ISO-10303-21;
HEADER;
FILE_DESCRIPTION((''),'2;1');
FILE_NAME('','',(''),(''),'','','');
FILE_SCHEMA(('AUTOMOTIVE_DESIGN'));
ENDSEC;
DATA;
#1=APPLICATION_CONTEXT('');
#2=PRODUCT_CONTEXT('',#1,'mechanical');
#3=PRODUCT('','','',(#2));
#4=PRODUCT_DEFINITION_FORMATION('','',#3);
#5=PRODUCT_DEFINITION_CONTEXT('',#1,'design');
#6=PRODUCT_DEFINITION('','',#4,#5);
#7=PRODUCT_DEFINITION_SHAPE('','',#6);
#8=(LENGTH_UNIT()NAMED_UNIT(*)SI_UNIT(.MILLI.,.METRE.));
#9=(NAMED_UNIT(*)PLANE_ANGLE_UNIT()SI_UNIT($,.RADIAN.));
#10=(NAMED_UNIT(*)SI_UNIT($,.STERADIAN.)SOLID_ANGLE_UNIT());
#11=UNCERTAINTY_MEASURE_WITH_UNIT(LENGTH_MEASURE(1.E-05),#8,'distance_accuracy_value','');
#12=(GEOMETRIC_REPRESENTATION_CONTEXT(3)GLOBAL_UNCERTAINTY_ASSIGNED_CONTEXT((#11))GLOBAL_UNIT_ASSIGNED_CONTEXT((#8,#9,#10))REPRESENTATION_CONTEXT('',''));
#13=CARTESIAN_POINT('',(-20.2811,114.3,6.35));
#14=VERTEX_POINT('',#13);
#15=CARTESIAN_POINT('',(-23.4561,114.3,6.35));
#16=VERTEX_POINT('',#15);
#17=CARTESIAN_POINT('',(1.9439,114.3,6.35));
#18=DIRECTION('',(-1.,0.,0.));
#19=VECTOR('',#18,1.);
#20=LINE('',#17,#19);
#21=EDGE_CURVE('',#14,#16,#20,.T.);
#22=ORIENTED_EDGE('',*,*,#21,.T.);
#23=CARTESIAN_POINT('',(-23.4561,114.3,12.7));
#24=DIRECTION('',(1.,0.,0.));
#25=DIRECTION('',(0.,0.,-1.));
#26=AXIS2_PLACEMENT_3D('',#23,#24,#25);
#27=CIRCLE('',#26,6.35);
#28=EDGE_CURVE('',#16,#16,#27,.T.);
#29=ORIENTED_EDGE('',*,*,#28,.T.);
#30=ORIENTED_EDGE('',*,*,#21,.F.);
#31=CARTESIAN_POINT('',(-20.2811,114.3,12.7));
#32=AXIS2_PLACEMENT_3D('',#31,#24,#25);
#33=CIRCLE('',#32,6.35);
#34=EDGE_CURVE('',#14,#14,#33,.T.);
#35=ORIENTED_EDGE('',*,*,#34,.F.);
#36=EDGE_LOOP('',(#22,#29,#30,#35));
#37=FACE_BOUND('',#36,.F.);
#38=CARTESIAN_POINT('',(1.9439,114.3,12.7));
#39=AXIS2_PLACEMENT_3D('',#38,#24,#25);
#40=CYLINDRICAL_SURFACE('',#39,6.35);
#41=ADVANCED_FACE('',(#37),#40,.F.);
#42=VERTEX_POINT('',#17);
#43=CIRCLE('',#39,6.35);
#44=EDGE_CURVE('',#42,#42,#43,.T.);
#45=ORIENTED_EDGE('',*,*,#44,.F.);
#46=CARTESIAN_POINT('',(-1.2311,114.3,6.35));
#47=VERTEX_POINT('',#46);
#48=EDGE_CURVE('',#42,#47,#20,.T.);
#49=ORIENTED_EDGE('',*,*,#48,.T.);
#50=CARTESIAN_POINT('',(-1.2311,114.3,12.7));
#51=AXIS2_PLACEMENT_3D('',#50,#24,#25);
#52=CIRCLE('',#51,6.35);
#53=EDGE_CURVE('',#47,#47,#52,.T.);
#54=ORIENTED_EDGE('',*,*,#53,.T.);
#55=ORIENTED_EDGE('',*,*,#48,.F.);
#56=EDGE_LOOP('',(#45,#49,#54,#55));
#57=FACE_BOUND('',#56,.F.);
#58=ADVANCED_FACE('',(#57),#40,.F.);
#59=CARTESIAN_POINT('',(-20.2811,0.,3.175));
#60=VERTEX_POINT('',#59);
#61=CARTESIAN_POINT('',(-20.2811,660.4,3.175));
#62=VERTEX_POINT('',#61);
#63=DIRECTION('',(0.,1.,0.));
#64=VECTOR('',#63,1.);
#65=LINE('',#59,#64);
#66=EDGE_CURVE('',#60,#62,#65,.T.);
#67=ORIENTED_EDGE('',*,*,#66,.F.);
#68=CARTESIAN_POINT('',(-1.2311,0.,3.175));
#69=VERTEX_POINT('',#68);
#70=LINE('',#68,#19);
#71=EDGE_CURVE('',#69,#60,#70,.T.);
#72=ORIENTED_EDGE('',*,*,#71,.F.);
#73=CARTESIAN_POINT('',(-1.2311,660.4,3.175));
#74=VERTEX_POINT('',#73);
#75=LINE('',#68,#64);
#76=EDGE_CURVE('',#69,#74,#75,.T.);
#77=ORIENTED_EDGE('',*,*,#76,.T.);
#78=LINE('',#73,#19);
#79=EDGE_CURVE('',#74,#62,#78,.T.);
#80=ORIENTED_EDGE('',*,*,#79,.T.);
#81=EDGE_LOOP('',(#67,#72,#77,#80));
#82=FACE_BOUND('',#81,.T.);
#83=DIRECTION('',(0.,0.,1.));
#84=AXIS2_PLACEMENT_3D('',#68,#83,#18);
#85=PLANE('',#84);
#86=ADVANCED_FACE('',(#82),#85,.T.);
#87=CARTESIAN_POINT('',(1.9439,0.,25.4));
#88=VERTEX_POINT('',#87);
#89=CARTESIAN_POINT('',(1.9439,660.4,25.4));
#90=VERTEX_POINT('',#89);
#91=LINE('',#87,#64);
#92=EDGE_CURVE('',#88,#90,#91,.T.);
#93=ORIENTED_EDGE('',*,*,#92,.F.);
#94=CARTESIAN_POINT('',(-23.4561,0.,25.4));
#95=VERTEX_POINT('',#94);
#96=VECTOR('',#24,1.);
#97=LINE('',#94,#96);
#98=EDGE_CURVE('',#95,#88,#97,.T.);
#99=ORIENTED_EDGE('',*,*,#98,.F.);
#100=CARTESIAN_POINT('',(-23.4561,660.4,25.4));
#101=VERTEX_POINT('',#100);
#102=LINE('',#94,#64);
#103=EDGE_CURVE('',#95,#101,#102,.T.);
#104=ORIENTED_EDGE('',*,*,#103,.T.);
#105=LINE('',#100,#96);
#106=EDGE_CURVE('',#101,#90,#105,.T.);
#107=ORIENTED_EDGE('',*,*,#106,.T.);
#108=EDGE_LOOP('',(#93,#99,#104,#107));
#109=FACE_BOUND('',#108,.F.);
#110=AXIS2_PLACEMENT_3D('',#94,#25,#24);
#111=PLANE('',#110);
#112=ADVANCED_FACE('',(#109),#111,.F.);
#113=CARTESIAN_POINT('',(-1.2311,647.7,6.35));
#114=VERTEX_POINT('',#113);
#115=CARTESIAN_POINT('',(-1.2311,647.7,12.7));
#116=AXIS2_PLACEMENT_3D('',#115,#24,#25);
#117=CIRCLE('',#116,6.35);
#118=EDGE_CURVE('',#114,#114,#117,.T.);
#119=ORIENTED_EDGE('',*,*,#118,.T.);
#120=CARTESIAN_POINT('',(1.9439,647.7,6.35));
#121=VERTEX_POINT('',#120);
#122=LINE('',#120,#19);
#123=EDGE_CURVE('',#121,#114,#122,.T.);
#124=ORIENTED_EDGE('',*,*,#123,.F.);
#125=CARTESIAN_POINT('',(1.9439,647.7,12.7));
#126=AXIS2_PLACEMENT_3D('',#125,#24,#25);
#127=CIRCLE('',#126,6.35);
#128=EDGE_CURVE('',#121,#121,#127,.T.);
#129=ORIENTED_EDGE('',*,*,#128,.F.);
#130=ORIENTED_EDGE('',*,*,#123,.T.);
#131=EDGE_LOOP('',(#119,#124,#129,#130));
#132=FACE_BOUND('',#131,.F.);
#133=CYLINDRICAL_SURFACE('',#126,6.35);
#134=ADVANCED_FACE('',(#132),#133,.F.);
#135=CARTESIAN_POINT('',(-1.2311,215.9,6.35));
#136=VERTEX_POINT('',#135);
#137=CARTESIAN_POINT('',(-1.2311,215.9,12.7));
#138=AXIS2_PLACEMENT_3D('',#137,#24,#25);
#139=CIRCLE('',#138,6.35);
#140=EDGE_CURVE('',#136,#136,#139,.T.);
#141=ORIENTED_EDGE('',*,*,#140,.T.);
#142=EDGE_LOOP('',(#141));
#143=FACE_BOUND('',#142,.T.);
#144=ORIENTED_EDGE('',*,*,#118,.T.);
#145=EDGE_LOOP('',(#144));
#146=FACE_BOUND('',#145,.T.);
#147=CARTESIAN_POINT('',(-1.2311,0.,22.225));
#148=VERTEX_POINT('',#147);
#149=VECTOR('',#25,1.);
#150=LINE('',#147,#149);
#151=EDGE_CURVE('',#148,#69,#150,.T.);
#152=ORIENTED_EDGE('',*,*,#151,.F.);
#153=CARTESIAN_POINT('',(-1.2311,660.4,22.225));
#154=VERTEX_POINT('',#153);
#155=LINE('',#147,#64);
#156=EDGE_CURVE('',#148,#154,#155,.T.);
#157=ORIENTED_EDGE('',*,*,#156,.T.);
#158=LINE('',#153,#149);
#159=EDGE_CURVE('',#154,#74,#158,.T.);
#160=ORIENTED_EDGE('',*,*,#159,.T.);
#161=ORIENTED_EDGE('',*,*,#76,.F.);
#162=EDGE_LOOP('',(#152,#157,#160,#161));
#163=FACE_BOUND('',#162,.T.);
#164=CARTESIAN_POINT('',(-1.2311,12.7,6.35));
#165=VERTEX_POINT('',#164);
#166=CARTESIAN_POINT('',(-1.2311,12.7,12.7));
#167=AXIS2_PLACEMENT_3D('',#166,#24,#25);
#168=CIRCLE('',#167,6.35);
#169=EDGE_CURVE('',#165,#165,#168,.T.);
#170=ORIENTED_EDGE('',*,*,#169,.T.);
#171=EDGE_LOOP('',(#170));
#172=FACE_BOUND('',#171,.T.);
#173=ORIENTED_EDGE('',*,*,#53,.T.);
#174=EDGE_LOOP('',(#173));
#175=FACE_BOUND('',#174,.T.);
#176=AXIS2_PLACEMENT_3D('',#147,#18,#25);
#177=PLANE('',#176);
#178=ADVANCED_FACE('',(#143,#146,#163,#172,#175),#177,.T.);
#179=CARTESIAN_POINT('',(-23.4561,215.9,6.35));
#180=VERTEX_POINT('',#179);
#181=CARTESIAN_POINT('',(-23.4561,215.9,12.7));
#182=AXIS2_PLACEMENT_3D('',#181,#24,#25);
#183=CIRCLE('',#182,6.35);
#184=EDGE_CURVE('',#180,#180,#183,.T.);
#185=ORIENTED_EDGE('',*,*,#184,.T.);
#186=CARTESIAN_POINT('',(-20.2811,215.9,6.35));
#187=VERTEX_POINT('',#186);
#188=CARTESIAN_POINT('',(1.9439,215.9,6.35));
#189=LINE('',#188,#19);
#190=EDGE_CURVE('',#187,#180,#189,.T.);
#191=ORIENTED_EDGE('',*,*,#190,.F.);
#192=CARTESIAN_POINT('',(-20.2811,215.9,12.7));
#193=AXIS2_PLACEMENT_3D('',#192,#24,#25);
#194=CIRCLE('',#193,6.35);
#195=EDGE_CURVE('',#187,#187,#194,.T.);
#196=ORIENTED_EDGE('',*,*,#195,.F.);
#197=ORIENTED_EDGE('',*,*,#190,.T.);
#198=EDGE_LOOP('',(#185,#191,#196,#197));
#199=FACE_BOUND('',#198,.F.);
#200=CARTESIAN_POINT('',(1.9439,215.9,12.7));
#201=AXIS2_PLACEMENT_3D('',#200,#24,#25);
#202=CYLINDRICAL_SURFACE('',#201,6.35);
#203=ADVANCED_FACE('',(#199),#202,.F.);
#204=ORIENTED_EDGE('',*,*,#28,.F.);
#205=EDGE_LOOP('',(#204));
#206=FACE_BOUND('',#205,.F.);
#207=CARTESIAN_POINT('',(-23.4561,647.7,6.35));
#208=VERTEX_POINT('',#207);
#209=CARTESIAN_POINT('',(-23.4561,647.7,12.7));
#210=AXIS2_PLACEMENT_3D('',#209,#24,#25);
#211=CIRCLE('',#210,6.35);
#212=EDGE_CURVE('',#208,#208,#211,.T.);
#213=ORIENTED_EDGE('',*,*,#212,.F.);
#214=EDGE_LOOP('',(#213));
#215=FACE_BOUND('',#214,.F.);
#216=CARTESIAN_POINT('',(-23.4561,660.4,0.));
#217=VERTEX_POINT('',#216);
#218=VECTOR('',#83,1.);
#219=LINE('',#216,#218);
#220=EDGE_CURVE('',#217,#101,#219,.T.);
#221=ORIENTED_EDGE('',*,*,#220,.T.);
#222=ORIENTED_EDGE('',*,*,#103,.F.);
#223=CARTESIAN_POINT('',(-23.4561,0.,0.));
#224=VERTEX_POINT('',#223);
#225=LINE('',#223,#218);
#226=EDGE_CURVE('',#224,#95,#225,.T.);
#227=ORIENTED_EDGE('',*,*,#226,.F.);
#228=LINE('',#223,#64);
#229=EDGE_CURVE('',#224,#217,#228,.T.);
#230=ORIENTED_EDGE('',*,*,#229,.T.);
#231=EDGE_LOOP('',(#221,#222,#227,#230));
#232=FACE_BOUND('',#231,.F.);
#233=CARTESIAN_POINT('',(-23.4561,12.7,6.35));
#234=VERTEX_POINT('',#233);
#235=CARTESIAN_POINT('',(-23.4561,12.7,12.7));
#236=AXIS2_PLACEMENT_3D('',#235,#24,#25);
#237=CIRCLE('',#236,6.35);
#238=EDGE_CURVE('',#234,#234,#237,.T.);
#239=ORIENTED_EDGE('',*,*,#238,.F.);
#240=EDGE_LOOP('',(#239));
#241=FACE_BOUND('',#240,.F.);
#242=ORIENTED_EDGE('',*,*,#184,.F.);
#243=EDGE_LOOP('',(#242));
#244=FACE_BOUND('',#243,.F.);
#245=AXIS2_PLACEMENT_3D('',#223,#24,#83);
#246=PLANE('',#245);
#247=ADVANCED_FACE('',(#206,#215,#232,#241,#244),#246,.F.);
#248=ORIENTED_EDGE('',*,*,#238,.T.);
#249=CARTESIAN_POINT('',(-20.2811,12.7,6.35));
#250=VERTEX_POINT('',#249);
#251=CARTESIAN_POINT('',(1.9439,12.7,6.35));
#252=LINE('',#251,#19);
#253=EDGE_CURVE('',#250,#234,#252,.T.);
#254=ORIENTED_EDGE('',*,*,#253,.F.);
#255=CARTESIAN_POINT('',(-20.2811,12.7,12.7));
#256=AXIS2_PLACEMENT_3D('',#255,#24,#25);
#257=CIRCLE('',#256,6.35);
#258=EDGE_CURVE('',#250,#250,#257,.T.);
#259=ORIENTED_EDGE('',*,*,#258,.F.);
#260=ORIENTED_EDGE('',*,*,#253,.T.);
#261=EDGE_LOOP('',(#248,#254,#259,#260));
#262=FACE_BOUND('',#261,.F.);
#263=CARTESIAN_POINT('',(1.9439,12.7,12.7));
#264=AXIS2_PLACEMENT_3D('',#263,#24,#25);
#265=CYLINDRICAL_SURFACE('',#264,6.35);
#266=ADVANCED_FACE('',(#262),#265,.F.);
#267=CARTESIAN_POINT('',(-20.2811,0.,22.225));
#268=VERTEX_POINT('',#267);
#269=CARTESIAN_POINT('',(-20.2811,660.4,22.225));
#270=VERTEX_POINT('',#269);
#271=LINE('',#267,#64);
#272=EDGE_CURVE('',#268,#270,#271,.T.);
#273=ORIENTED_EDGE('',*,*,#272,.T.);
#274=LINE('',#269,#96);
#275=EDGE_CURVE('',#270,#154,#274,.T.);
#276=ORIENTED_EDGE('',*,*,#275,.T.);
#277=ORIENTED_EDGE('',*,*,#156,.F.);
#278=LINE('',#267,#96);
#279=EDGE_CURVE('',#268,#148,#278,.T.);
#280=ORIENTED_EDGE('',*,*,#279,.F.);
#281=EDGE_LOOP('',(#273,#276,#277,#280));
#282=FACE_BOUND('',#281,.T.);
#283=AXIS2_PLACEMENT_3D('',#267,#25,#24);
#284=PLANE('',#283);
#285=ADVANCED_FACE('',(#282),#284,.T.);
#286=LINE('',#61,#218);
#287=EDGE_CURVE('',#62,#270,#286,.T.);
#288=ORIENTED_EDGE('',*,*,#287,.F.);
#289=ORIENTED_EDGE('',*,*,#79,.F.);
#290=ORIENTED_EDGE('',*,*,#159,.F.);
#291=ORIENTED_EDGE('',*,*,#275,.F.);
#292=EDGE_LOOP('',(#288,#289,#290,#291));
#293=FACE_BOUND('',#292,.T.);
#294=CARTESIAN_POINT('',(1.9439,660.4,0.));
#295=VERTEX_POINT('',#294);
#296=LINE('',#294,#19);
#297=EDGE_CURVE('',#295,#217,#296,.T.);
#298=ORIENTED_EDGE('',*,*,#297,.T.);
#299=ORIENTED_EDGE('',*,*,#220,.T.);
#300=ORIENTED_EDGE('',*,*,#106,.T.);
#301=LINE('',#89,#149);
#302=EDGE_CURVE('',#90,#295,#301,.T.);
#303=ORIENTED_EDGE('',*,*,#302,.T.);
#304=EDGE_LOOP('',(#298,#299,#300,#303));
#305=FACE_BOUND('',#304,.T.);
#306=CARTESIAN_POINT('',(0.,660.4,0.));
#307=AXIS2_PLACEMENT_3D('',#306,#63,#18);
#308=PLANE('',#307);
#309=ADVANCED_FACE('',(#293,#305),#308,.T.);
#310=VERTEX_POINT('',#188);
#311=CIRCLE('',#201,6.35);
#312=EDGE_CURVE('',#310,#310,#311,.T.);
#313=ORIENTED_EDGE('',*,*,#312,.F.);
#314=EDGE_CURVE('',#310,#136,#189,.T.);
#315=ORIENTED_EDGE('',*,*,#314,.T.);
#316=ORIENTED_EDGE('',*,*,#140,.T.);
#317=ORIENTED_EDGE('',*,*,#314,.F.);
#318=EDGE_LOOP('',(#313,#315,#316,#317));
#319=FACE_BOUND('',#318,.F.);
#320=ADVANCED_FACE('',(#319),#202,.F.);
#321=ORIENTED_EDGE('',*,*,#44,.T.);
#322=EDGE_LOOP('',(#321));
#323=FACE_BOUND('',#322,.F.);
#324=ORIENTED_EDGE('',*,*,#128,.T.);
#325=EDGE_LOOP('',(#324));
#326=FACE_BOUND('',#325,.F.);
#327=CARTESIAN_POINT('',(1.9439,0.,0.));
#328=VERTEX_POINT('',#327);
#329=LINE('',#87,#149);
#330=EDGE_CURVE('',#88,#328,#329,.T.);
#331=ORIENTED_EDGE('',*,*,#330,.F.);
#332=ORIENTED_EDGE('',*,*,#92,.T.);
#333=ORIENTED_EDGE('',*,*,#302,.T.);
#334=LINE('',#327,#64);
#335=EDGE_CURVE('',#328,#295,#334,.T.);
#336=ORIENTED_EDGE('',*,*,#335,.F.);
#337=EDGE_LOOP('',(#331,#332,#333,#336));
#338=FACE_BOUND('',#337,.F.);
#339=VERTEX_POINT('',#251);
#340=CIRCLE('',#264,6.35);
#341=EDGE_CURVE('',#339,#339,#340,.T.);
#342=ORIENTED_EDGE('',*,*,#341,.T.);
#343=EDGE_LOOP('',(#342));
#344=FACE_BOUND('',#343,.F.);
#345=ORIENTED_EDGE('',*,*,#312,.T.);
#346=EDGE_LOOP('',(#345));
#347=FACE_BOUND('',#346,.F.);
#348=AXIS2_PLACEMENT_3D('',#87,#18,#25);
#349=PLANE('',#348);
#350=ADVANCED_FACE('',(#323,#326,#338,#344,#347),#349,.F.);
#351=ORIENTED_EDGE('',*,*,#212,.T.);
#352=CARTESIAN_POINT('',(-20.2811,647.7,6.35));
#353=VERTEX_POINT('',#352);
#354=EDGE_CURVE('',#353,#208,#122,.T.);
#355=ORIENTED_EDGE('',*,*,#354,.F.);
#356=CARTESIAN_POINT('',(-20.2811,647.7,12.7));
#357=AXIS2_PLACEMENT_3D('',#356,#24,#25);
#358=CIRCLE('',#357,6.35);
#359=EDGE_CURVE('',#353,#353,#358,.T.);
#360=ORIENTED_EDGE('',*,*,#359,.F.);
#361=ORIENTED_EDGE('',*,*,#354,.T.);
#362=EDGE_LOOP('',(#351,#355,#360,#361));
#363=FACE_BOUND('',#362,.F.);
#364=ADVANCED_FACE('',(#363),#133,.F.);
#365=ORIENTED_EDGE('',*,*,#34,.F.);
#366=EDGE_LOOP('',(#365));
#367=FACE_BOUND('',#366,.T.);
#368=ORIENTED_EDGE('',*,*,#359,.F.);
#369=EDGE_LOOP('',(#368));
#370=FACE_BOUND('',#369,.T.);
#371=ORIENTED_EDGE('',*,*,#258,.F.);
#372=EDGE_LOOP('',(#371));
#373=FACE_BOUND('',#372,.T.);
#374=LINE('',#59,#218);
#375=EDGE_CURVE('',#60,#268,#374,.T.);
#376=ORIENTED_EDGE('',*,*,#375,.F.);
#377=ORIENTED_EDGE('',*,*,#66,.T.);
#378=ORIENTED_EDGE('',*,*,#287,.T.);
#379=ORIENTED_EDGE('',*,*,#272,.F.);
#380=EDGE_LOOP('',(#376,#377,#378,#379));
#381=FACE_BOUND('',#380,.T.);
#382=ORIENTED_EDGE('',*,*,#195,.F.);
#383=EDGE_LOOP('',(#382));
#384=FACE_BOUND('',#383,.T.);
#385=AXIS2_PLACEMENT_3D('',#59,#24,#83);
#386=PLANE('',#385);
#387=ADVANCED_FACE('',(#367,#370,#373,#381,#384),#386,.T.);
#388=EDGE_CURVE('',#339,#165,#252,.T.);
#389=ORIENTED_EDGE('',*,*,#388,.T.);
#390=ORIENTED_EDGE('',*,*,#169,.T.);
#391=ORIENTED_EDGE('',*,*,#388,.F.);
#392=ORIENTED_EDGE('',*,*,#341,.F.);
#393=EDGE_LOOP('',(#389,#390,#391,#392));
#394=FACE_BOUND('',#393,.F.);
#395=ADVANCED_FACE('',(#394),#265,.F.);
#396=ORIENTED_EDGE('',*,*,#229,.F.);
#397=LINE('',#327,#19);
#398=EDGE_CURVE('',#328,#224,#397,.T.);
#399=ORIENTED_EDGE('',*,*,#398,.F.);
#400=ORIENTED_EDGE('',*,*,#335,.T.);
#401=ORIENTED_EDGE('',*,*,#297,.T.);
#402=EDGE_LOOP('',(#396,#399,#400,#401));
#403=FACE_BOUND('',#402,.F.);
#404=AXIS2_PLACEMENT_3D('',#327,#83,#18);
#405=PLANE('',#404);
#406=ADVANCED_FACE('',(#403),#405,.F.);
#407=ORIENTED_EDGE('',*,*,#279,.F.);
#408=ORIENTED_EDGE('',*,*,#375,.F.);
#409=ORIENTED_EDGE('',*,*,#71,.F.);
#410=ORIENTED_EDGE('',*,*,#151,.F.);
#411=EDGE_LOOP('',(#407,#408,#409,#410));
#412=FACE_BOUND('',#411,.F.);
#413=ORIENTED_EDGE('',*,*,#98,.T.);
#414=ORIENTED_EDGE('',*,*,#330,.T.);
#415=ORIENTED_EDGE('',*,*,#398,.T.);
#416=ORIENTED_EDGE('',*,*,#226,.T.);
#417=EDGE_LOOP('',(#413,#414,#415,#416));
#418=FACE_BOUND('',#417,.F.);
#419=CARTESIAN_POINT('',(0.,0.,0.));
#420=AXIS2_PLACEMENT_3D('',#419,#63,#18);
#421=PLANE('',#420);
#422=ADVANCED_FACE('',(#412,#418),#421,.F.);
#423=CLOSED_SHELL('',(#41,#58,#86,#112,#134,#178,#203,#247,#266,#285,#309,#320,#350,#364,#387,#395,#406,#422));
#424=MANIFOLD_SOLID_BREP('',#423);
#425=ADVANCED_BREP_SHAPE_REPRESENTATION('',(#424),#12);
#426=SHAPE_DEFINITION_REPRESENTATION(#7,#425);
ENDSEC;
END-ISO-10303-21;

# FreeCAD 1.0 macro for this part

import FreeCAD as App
import Part
import Sketcher
Q = App.Units.Quantity

doc = App.newDocument("Part")
body = doc.addObject("PartDesign::Body", "Body")

sketch1 = body.newObject("Sketcher::SketchObject", "Sketch")
sketch1.AttachmentSupport = (doc.getObject("XZ_Plane"), [""])
sketch1.MapMode = "FlatFace"
sketch1.addGeometry([
    Part.LineSegment(App.Vector(2, 25, 0), App.Vector(2, 0, 0)),
    Part.LineSegment(App.Vector(2, 0, 0), App.Vector(-23, 0, 0)),
    Part.LineSegment(App.Vector(-23, 0, 0), App.Vector(-23, 25, 0)),
    Part.LineSegment(App.Vector(-23, 25, 0), App.Vector(2, 25, 0)),
    Part.LineSegment(App.Vector(-1, 22, 0), App.Vector(-20, 22, 0)),
    Part.LineSegment(App.Vector(-20, 22, 0), App.Vector(-20, 3, 0)),
    Part.LineSegment(App.Vector(-20, 3, 0), App.Vector(-1, 3, 0)),
    Part.LineSegment(App.Vector(-1, 3, 0), App.Vector(-1, 22, 0)),
], False)
sketch1.addConstraint([
    Sketcher.Constraint("Coincident", 0, 2, 1, 1),
    Sketcher.Constraint("Coincident", 1, 2, 2, 1),
    Sketcher.Constraint("Coincident", 2, 2, 3, 1),
    Sketcher.Constraint("Coincident", 3, 2, 0, 1),
    Sketcher.Constraint("Coincident", 4, 2, 5, 1),
    Sketcher.Constraint("Coincident", 5, 2, 6, 1),
    Sketcher.Constraint("Coincident", 6, 2, 7, 1),
    Sketcher.Constraint("Coincident", 7, 2, 4, 1),
    Sketcher.Constraint("Vertical", 0),
    Sketcher.Constraint("Horizontal", 1),
    Sketcher.Constraint("Vertical", 2),
    Sketcher.Constraint("Horizontal", 3),
    Sketcher.Constraint("Horizontal", 4),
    Sketcher.Constraint("Vertical", 5),
    Sketcher.Constraint("Horizontal", 6),
    Sketcher.Constraint("Vertical", 7),
    Sketcher.Constraint("PointOnObject", 0, 2, -1),
    Sketcher.Constraint("Equal", 3, 0),
    Sketcher.Constraint("Equal", 6, 5),
    Sketcher.Constraint("DistanceX", 1, 2, 1, 1, Q("1 in")),
    Sketcher.Constraint("DistanceY", -1, 1, 5, 2, Q("0.125 in")),
    Sketcher.Constraint("DistanceX", 2, 2, 4, 2, Q("0.125 in")),
    Sketcher.Constraint("DistanceY", 4, 2, 2, 2, Q("0.125 in")),
    Sketcher.Constraint("DistanceX", -1, 1, 0, 2, 1.944),
])
pad1 = body.newObject("PartDesign::Pad", "Pad")
pad1.Profile = sketch1
pad1.Length = Q("26 in")
pad1.Reversed = True

sketch2 = body.newObject("Sketcher::SketchObject", "Sketch001")
sketch2.AttachmentSupport = (doc.getObject("YZ_Plane"), [""])
sketch2.MapMode = "FlatFace"
sketch2.AttachmentOffset = App.Placement(App.Vector(0, 0, 1.9439), App.Rotation())
sketch2.addGeometry([
    Part.Circle(App.Vector(13, 13, 0), App.Vector(0, 0, 1), 6),
    Part.Circle(App.Vector(648, 13, 0), App.Vector(0, 0, 1), 6),
], False)
sketch2.addConstraint([
    Sketcher.Constraint("Equal", 0, 1),
    Sketcher.Constraint("Horizontal", 0, 3, 1, 3),
    Sketcher.Constraint("Diameter", 0, Q("0.5 in")),
    Sketcher.Constraint("DistanceX", -1, 1, 0, 3, Q("0.5 in")),
    Sketcher.Constraint("DistanceY", -1, 1, 0, 3, Q("0.5 in")),
    Sketcher.Constraint("DistanceX", 0, 3, 1, 3, Q("25 in")),
])
pocket1 = body.newObject("PartDesign::Pocket", "Pocket")
pocket1.Profile = sketch2
pocket1.Length = Q("26 in")

sketch3 = body.newObject("Sketcher::SketchObject", "Sketch002")
sketch3.AttachmentSupport = (doc.getObject("YZ_Plane"), [""])
sketch3.MapMode = "FlatFace"
sketch3.AttachmentOffset = App.Placement(App.Vector(0, 0, 1.9439), App.Rotation())
sketch3.addGeometry(Part.Circle(App.Vector(114, 13, 0), App.Vector(0, 0, 1), 6), False)
sketch3.addConstraint([
    Sketcher.Constraint("Diameter", 0, Q("0.5 in")),
    Sketcher.Constraint("DistanceY", -1, 1, 0, 3, Q("0.5 in")),
    Sketcher.Constraint("DistanceX", -1, 1, 0, 3, Q("4.5 in")),
])
pocket2 = body.newObject("PartDesign::Pocket", "Pocket001")
pocket2.Profile = sketch3
pocket2.Length = Q("26 in")

sketch4 = body.newObject("Sketcher::SketchObject", "Sketch003")
sketch4.AttachmentSupport = (doc.getObject("YZ_Plane"), [""])
sketch4.MapMode = "FlatFace"
sketch4.AttachmentOffset = App.Placement(App.Vector(0, 0, 1.9439), App.Rotation())
sketch4.addGeometry(Part.Circle(App.Vector(216, 13, 0), App.Vector(0, 0, 1), 6), False)
sketch4.addConstraint([
    Sketcher.Constraint("Diameter", 0, Q("0.5 in")),
    Sketcher.Constraint("DistanceY", -1, 1, 0, 3, Q("0.5 in")),
    Sketcher.Constraint("DistanceX", -1, 1, 0, 3, Q("8.5 in")),
])
pocket3 = body.newObject("PartDesign::Pocket", "Pocket002")
pocket3.Profile = sketch4
pocket3.Length = Q("26 in")

doc.recompute()
